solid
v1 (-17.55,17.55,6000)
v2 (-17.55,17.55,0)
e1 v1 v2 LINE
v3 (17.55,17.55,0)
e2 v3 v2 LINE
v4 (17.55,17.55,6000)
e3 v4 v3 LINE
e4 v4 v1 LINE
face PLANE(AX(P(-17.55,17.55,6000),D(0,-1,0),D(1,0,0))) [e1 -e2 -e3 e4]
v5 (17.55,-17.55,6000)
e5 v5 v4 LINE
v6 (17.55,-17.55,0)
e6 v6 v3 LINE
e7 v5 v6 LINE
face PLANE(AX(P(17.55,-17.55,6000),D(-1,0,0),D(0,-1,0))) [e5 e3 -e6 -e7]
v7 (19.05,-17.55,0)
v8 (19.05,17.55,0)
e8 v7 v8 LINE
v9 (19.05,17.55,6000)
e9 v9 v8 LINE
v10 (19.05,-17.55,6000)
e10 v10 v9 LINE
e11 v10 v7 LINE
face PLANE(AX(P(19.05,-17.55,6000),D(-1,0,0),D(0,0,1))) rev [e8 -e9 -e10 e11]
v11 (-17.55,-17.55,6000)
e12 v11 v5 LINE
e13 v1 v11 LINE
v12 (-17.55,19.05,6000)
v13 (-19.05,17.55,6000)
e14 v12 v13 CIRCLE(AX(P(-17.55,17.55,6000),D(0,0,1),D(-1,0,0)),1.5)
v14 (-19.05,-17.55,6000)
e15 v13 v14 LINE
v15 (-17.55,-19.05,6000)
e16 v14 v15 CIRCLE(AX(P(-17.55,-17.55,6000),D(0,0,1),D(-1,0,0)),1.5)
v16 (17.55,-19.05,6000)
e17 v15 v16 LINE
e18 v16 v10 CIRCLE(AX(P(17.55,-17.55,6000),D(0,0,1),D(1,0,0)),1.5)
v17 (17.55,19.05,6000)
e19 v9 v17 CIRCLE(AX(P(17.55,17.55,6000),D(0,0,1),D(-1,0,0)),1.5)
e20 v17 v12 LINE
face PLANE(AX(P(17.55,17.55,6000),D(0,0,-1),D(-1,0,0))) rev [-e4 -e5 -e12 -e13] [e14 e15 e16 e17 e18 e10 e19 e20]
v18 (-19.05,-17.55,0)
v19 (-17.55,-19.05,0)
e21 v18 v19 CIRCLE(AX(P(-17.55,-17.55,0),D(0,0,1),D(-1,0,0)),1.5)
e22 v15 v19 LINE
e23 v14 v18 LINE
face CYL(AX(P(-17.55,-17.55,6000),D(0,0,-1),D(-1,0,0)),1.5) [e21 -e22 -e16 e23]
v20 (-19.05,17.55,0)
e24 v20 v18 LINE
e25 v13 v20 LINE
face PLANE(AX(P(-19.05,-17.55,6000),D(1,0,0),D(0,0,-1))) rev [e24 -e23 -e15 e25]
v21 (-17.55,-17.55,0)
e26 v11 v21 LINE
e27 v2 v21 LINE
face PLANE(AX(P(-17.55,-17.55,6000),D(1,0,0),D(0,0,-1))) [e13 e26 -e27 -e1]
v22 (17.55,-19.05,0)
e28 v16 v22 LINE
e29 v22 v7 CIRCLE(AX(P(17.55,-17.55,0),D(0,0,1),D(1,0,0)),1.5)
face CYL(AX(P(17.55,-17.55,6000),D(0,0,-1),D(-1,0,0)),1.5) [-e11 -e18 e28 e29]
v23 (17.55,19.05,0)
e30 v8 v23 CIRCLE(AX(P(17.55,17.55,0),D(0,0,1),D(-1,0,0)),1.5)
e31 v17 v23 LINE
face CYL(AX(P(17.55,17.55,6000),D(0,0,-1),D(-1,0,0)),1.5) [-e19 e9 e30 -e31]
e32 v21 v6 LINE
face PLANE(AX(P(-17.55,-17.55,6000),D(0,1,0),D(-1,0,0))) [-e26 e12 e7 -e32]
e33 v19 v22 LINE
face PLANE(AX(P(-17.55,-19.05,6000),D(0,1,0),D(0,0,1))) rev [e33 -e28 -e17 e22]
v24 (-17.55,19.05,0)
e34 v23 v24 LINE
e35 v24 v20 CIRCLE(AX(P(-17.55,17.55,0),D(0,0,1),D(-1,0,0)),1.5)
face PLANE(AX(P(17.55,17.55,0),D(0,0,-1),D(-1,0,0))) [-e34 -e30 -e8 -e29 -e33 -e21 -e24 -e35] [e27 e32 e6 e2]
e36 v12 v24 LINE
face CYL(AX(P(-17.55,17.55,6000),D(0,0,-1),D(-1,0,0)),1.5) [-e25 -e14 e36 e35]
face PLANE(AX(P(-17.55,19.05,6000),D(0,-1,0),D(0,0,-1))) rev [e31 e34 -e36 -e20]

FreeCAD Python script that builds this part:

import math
import FreeCAD as App
import Part
import Sketcher

V = App.Vector


def add_polygon(sketch, points):
    """Adds a closed chain of lines whose ends are joined by coincident constraints."""
    first, n = sketch.GeometryCount, len(points)
    for a, b in zip(points, points[1:] + points[:1]):
        sketch.addGeometry(Part.LineSegment(App.Vector(*a, 0), App.Vector(*b, 0)), False)
    for i in range(n):
        sketch.addConstraint(Sketcher.Constraint("Coincident", first + i, 2, first + (i + 1) % n, 1))

doc = App.newDocument("Part")
body = doc.addObject("PartDesign::Body", "Body")

sketch1 = body.newObject("Sketcher::SketchObject", "Sketch")
sketch1.AttachmentSupport = (doc.getObject("XY_Plane"), [""])
sketch1.MapMode = "FlatFace"
sketch1.addGeometry(Part.LineSegment(V(-17.6, -19.1, 0), V(17.6, -19.1, 0)), False)
sketch1.addGeometry(Part.ArcOfCircle(Part.Circle(V(17.6, -17.6, 0), V(0, 0, 1), 1.5), math.radians(-90), math.radians(0)), False)
sketch1.addGeometry(Part.LineSegment(V(19.1, -17.6, 0), V(19.1, 17.6, 0)), False)
sketch1.addGeometry(Part.ArcOfCircle(Part.Circle(V(17.6, 17.6, 0), V(0, 0, 1), 1.5), math.radians(0), math.radians(90)), False)
sketch1.addGeometry(Part.LineSegment(V(17.6, 19.1, 0), V(-17.6, 19.1, 0)), False)
sketch1.addGeometry(Part.ArcOfCircle(Part.Circle(V(-17.6, 17.6, 0), V(0, 0, 1), 1.5), math.radians(90), math.radians(180)), False)
sketch1.addGeometry(Part.LineSegment(V(-19.1, 17.6, 0), V(-19.1, -17.6, 0)), False)
sketch1.addGeometry(Part.ArcOfCircle(Part.Circle(V(-17.6, -17.6, 0), V(0, 0, 1), 1.5), math.radians(180), math.radians(270)), False)
add_polygon(sketch1, [(17.6, -17.6), (-17.6, -17.6), (-17.6, 17.6), (17.6, 17.6)])
sketch1.addConstraint(Sketcher.Constraint("Tangent", 0, 2, 1, 1))
sketch1.addConstraint(Sketcher.Constraint("Tangent", 1, 2, 2, 1))
sketch1.addConstraint(Sketcher.Constraint("Tangent", 2, 2, 3, 1))
sketch1.addConstraint(Sketcher.Constraint("Tangent", 3, 2, 4, 1))
sketch1.addConstraint(Sketcher.Constraint("Tangent", 4, 2, 5, 1))
sketch1.addConstraint(Sketcher.Constraint("Tangent", 5, 2, 6, 1))
sketch1.addConstraint(Sketcher.Constraint("Tangent", 6, 2, 7, 1))
sketch1.addConstraint(Sketcher.Constraint("Tangent", 7, 2, 0, 1))
sketch1.addConstraint(Sketcher.Constraint("Horizontal", 0))
sketch1.addConstraint(Sketcher.Constraint("Vertical", 2))
sketch1.addConstraint(Sketcher.Constraint("Horizontal", 4))
sketch1.addConstraint(Sketcher.Constraint("Vertical", 6))
sketch1.addConstraint(Sketcher.Constraint("Horizontal", 8))
sketch1.addConstraint(Sketcher.Constraint("Vertical", 9))
sketch1.addConstraint(Sketcher.Constraint("Horizontal", 10))
sketch1.addConstraint(Sketcher.Constraint("Vertical", 11))
sketch1.addConstraint(Sketcher.Constraint("Coincident", 8, 2, 7, 3))
sketch1.addConstraint(Sketcher.Constraint("Coincident", 9, 2, 5, 3))
sketch1.addConstraint(Sketcher.Constraint("Coincident", 10, 2, 3, 3))
sketch1.addConstraint(Sketcher.Constraint("Equal", 1, 3))
sketch1.addConstraint(Sketcher.Constraint("Symmetric", 1, 3, 5, 3, -1, 1))
sketch1.addConstraint(Sketcher.Constraint("Equal", 10, 2))
sketch1.addConstraint(Sketcher.Constraint("Radius", 1, 1.5))
sketch1.addConstraint(Sketcher.Constraint("DistanceX", 0, 1, 0, 2, 35.1))
pad1 = body.newObject("PartDesign::Pad", "Pad")
pad1.Profile = sketch1
pad1.Length = 6000

doc.recompute()
